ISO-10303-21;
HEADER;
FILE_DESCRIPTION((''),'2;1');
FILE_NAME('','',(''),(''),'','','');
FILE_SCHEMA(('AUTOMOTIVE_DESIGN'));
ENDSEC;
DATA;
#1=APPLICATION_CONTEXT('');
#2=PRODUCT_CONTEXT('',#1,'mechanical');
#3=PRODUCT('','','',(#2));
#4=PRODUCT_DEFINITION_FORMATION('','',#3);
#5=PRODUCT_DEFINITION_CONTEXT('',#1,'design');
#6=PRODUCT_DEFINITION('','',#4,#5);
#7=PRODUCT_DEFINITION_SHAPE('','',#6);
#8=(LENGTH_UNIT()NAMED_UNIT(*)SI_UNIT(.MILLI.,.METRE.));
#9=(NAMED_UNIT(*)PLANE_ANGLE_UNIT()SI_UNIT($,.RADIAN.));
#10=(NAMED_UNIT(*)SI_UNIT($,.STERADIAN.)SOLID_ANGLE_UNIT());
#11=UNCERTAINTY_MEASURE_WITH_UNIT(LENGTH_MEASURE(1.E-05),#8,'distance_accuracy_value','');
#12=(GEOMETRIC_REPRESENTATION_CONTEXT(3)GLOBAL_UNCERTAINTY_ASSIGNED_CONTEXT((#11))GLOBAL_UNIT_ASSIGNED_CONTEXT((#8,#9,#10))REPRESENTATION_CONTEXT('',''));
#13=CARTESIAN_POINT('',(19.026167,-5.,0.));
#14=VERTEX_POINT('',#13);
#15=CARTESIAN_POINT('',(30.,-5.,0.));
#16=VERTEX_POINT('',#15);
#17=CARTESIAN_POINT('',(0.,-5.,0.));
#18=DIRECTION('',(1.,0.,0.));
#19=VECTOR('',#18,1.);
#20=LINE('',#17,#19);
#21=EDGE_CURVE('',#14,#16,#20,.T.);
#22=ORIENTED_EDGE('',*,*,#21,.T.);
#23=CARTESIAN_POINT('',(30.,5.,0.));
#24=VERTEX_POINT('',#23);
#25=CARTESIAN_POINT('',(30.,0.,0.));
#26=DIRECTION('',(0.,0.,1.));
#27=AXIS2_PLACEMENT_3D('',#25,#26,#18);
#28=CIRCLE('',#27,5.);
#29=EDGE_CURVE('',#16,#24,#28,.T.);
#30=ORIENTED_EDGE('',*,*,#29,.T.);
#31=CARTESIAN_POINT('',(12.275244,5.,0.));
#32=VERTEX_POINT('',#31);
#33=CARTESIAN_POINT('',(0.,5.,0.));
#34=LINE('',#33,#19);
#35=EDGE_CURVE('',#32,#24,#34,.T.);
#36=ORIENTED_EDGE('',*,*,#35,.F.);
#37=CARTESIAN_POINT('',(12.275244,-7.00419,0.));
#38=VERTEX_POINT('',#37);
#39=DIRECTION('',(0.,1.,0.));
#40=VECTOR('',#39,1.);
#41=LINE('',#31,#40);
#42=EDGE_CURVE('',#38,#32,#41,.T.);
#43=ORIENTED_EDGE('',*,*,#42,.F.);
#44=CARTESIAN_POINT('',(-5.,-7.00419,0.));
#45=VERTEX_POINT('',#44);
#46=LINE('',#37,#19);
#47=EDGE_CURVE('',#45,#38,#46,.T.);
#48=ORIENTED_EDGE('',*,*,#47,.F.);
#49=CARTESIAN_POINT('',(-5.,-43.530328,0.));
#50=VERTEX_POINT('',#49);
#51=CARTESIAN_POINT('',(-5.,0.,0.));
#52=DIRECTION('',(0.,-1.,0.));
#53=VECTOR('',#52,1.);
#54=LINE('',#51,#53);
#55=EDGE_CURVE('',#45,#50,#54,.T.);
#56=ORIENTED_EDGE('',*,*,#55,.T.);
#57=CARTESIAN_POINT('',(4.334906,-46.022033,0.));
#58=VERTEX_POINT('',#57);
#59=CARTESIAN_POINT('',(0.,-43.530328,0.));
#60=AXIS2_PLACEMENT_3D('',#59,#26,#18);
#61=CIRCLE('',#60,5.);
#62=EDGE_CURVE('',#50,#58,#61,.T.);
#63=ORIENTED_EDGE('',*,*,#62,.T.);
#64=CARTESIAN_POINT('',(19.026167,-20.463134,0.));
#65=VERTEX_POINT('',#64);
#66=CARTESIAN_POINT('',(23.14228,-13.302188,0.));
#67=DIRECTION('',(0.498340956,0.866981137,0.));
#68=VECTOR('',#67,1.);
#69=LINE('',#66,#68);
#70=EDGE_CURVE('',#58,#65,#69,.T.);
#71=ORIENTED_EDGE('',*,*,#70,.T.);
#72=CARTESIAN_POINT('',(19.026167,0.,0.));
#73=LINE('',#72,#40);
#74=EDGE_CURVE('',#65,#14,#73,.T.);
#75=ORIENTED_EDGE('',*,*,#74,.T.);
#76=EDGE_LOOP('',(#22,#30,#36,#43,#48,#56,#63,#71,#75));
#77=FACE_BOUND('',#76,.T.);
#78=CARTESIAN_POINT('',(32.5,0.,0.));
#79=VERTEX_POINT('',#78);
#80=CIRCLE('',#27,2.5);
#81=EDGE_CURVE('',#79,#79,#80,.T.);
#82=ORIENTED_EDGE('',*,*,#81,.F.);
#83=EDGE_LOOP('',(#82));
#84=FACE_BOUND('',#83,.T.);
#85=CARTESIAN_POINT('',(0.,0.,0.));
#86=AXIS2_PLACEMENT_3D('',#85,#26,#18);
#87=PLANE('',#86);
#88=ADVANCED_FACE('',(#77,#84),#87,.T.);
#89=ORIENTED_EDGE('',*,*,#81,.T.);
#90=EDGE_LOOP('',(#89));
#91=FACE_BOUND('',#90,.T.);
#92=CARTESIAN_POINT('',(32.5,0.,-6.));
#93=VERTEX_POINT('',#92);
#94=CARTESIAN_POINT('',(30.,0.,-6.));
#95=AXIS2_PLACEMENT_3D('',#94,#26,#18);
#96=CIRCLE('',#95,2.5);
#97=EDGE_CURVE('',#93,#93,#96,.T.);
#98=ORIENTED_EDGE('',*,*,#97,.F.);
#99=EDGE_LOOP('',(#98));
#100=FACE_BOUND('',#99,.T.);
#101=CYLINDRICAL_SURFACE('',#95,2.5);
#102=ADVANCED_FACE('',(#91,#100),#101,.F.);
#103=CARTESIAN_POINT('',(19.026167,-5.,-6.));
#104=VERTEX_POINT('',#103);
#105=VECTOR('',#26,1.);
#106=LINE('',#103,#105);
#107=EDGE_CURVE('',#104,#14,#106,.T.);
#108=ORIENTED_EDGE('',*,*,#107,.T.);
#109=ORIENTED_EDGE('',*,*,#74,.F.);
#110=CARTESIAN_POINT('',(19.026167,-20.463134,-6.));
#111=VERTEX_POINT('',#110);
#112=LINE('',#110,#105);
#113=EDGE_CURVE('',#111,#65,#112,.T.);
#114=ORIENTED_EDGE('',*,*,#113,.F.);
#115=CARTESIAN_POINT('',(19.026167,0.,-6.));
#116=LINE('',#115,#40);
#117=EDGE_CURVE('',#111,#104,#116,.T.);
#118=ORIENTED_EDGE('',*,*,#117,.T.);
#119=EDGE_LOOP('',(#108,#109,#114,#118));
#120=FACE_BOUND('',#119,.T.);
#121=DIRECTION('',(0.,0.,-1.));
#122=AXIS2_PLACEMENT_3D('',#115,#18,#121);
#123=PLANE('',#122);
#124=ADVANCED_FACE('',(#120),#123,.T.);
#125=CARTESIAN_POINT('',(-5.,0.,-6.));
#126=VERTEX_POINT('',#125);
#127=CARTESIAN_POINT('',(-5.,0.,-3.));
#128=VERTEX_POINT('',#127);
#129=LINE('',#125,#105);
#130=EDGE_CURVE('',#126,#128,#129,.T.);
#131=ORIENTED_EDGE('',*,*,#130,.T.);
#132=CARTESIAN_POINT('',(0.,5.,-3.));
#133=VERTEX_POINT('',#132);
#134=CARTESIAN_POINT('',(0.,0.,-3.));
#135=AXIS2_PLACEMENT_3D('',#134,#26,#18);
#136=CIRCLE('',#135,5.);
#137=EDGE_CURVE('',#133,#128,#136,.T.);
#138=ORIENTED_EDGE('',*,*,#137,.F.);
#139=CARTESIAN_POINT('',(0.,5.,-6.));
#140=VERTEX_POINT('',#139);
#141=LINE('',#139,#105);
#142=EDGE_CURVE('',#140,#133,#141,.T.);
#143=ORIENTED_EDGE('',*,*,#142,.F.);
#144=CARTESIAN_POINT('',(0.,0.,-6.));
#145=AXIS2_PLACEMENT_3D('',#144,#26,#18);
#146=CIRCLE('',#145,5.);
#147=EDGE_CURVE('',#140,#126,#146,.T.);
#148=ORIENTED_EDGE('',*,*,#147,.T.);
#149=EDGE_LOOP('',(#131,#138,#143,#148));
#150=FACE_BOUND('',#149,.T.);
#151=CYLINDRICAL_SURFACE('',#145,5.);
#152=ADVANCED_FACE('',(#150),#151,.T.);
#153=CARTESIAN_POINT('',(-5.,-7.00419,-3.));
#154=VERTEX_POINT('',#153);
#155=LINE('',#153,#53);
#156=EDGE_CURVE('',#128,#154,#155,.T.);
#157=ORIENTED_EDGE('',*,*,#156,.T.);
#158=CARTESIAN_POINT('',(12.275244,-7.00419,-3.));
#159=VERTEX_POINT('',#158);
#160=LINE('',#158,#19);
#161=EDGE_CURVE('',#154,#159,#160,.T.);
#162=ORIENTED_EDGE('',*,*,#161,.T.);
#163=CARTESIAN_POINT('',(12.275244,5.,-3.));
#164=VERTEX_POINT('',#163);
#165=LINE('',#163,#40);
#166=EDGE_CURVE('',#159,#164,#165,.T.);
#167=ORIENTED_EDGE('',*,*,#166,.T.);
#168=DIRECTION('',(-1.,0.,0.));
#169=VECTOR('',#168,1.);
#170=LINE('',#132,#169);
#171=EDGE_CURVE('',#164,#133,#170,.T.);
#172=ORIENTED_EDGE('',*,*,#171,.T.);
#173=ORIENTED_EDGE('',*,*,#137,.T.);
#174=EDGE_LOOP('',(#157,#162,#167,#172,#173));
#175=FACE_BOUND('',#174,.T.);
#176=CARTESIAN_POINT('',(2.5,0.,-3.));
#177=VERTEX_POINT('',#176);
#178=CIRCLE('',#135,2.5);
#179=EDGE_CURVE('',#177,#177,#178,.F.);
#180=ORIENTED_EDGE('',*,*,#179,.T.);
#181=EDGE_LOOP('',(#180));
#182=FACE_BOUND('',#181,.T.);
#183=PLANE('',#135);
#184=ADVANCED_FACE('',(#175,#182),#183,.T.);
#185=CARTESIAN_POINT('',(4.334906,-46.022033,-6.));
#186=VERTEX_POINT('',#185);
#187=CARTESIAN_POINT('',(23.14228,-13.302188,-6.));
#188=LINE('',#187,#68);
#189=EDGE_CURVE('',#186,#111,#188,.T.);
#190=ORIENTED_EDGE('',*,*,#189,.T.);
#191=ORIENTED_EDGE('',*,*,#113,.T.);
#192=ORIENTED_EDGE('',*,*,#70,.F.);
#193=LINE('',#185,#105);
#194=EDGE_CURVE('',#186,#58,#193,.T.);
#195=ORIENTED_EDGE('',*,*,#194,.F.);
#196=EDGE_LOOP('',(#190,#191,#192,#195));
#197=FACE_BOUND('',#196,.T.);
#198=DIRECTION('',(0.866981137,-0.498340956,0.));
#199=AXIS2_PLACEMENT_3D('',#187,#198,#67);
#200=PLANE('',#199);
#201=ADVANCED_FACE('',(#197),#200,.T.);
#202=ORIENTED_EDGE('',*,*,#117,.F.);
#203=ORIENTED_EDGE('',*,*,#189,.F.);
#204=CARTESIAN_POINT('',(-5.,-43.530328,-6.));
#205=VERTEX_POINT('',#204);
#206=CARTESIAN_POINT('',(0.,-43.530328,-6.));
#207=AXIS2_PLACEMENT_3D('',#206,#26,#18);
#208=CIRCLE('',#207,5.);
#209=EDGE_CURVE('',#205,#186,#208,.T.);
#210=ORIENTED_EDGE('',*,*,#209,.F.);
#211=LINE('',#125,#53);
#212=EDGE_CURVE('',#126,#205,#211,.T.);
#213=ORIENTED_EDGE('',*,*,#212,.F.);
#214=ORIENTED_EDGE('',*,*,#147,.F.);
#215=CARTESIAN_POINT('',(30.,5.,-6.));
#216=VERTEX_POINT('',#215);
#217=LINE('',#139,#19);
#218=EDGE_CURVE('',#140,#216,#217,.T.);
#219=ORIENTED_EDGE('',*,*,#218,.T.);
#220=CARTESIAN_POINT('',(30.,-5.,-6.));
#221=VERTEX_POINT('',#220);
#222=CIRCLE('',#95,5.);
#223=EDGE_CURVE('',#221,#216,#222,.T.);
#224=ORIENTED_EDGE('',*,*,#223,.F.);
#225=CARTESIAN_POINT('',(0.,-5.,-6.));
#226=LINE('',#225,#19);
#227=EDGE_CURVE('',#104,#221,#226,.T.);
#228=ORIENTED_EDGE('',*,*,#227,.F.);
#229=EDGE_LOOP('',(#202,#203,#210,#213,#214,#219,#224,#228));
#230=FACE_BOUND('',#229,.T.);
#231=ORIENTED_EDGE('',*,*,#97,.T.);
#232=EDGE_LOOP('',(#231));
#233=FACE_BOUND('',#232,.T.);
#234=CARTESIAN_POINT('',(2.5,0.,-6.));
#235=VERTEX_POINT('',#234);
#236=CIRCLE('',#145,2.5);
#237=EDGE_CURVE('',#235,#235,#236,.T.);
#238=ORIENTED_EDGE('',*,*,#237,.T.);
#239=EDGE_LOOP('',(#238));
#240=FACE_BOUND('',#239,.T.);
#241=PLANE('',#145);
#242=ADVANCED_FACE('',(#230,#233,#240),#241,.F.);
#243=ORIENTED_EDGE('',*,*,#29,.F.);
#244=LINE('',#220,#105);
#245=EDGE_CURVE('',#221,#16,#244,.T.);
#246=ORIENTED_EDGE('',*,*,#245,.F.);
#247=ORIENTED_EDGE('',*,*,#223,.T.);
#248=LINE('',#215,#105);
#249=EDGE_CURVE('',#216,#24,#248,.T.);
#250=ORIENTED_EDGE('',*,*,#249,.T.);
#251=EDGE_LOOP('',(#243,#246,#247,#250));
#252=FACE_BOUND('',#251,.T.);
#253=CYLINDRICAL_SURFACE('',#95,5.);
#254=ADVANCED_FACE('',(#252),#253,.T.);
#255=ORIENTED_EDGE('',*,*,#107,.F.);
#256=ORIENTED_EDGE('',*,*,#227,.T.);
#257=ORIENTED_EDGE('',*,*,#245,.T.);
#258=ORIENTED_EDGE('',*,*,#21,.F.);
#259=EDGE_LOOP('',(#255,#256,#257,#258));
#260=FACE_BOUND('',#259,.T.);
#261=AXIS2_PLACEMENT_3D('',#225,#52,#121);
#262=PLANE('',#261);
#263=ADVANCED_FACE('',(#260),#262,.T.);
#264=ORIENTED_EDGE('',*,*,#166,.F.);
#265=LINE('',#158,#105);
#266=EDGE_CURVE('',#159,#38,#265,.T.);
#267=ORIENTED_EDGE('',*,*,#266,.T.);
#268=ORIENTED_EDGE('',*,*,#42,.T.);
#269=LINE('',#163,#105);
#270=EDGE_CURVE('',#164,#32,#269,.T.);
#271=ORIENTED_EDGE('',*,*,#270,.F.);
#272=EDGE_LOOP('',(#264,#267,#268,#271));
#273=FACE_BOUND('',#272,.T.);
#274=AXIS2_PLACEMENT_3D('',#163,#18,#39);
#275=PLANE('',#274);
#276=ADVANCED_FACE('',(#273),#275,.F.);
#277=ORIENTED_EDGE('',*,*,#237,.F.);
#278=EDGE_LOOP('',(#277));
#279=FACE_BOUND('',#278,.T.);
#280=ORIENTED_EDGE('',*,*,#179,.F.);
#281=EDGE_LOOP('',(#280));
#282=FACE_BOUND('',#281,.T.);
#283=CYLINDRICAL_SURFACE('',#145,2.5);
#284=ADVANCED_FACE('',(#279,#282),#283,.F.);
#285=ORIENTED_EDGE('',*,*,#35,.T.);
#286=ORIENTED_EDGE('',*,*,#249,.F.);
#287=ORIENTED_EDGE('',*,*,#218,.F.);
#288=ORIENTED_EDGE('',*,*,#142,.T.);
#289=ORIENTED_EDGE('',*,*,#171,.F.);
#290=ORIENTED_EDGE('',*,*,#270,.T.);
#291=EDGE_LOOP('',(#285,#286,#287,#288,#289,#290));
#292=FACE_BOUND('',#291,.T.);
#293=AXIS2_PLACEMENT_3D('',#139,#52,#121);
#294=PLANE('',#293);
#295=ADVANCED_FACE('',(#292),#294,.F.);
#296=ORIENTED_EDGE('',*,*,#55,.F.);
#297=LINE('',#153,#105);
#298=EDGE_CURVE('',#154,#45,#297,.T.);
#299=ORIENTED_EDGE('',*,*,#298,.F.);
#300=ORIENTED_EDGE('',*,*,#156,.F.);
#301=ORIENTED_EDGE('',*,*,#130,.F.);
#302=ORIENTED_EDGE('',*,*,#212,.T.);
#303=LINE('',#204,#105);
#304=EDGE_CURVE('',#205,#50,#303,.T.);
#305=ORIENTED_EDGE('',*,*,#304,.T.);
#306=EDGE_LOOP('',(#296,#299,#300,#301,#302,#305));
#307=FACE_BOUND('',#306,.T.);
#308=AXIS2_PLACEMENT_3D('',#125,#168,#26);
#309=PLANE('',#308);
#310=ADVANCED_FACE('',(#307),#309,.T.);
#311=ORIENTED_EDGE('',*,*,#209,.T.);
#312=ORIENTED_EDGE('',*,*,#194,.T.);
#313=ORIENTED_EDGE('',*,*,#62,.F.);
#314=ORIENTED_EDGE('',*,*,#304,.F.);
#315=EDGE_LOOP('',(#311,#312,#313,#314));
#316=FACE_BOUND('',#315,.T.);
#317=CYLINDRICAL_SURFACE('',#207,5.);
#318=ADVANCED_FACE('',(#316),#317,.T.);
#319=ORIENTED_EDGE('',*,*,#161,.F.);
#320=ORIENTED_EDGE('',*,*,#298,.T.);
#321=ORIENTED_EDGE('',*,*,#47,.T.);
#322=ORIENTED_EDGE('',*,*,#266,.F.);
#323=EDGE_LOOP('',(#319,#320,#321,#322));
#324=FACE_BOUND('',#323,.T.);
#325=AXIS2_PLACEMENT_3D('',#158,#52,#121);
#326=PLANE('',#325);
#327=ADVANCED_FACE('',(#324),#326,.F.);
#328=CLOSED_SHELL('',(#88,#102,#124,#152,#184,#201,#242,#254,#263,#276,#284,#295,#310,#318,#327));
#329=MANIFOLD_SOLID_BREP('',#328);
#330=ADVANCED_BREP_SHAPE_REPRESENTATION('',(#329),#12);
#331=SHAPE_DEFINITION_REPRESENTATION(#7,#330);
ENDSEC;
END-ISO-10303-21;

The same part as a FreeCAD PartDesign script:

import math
import FreeCAD as App
import Part
import Sketcher
from FreeCAD import Vector
Q = App.Units.Quantity

doc = App.newDocument("Part")
params = doc.addObject("Spreadsheet::Sheet", "Params")
for row, (alias, value) in enumerate([
    ("sketch1_diameter", "5 mm"),
    ("sketch1_radius", "5 mm"),
    ("sketch1_width", "30 mm"),
    ("pad1_length", "6 mm"),
    ("sketch2_radius", "5 mm"),
    ("pocket1_length", "3 mm"),
], start=1):
    params.set(f"A{row}", alias)
    params.set(f"B{row}", "=" + value)
    params.setAlias(f"B{row}", alias)

body = doc.addObject("PartDesign::Body", "Body")

# Sketch on XY plane
sketch1 = body.newObject("Sketcher::SketchObject", "Sketch")
sketch1.AttachmentSupport = (doc.getObject("XY_Plane"), [""])
sketch1.MapMode = "FlatFace"
sketch1.addGeometry([
    Part.LineSegment(Vector(30, 5, 0), Vector(0, 5, 0)),  # 0
    Part.ArcOfCircle(Part.Circle(Vector(0, 0, 0), Vector(0, 0, 1), 5), math.radians(90), math.radians(180)),  # 1
    Part.LineSegment(Vector(-5, 0, 0), Vector(-5, -43.5, 0)),  # 2
    Part.ArcOfCircle(Part.Circle(Vector(0, -43.5, 0), Vector(0, 0, 1), 5), math.radians(-180), math.radians(-30)),  # 3
    Part.LineSegment(Vector(4.3, -46, 0), Vector(19, -20.5, 0)),  # 4
    Part.LineSegment(Vector(19, -20.5, 0), Vector(19, -5, 0)),  # 5
    Part.LineSegment(Vector(19, -5, 0), Vector(30, -5, 0)),  # 6
    Part.ArcOfCircle(Part.Circle(Vector(30, 0, 0), Vector(0, 0, 1), 5), math.radians(-90), math.radians(90)),  # 7
    Part.Circle(Vector(0, 0, 0), Vector(0, 0, 1), 2.5),  # 8
    Part.Circle(Vector(30, 0, 0), Vector(0, 0, 1), 2.5),  # 9
], False)
sketch1.addConstraint([
    Sketcher.Constraint("Tangent", 0, 2, 1, 1),
    Sketcher.Constraint("Tangent", 1, 2, 2, 1),
    Sketcher.Constraint("Tangent", 2, 2, 3, 1),
    Sketcher.Constraint("Tangent", 3, 2, 4, 1),
    Sketcher.Constraint("Coincident", 4, 2, 5, 1),
    Sketcher.Constraint("Coincident", 5, 2, 6, 1),
    Sketcher.Constraint("Tangent", 6, 2, 7, 1),
    Sketcher.Constraint("Tangent", 7, 2, 0, 1),
    Sketcher.Constraint("Horizontal", 0),
    Sketcher.Constraint("Vertical", 2),
    Sketcher.Constraint("Vertical", 5),
    Sketcher.Constraint("Horizontal", 6),
    Sketcher.Constraint("Coincident", 1, 3, -1, 1),
    Sketcher.Constraint("Coincident", 8, 3, -1, 1),
    Sketcher.Constraint("Coincident", 9, 3, 7, 3),
    Sketcher.Constraint("Equal", 1, 3),
    Sketcher.Constraint("Equal", 3, 7),
    Sketcher.Constraint("Equal", 8, 9),
    Sketcher.Constraint("Diameter", 8, Q("5 mm")),
    Sketcher.Constraint("Radius", 1, Q("5 mm")),
    Sketcher.Constraint("DistanceX", 0, 2, 0, 1, Q("30 mm")),
    Sketcher.Constraint("DistanceY", 3, 2, 4, 2, Q("25.558899 mm")),
    Sketcher.Constraint("Distance", 4, Q("29.48034 mm")),
    Sketcher.Constraint("DistanceY", 2, 2, 2, 1, Q("43.530328 mm")),
])
sketch1.setExpression("Constraints[18]", "Params.sketch1_diameter")
sketch1.setExpression("Constraints[19]", "Params.sketch1_radius")
sketch1.setExpression("Constraints[20]", "Params.sketch1_width")
pad1 = body.newObject("PartDesign::Pad", "Pad")
pad1.Profile = sketch1
pad1.setExpression("Length", "Params.pad1_length")
pad1.Reversed = True

# Sketch on XY plane
sketch2 = body.newObject("Sketcher::SketchObject", "Sketch001")
sketch2.AttachmentSupport = (doc.getObject("XY_Plane"), [""])
sketch2.MapMode = "FlatFace"
sketch2.addGeometry([
    Part.LineSegment(Vector(12, -7, 0), Vector(12, 5, 0)),  # 0
    Part.LineSegment(Vector(12, 5, 0), Vector(0, 5, 0)),  # 1
    Part.ArcOfCircle(Part.Circle(Vector(0, 0, 0), Vector(0, 0, 1), 5), math.radians(90), math.radians(180)),  # 2
    Part.LineSegment(Vector(-5, 0, 0), Vector(-5, -7, 0)),  # 3
    Part.LineSegment(Vector(-5, -7, 0), Vector(12, -7, 0)),  # 4
], False)
sketch2.addConstraint([
    Sketcher.Constraint("Coincident", 0, 2, 1, 1),
    Sketcher.Constraint("Tangent", 1, 2, 2, 1),
    Sketcher.Constraint("Tangent", 2, 2, 3, 1),
    Sketcher.Constraint("Coincident", 3, 2, 4, 1),
    Sketcher.Constraint("Coincident", 4, 2, 0, 1),
    Sketcher.Constraint("Vertical", 0),
    Sketcher.Constraint("Horizontal", 1),
    Sketcher.Constraint("Vertical", 3),
    Sketcher.Constraint("Horizontal", 4),
    Sketcher.Constraint("Coincident", 2, 3, -1, 1),
    Sketcher.Constraint("Radius", 2, Q("5 mm")),
    Sketcher.Constraint("DistanceY", 0, 1, 0, 2, Q("12.00419 mm")),
    Sketcher.Constraint("DistanceX", 1, 2, 1, 1, Q("12.275244 mm")),
])
sketch2.setExpression("Constraints[10]", "Params.sketch2_radius")
pocket1 = body.newObject("PartDesign::Pocket", "Pocket")
pocket1.Profile = sketch2
pocket1.setExpression("Length", "Params.pocket1_length")

doc.recompute()
